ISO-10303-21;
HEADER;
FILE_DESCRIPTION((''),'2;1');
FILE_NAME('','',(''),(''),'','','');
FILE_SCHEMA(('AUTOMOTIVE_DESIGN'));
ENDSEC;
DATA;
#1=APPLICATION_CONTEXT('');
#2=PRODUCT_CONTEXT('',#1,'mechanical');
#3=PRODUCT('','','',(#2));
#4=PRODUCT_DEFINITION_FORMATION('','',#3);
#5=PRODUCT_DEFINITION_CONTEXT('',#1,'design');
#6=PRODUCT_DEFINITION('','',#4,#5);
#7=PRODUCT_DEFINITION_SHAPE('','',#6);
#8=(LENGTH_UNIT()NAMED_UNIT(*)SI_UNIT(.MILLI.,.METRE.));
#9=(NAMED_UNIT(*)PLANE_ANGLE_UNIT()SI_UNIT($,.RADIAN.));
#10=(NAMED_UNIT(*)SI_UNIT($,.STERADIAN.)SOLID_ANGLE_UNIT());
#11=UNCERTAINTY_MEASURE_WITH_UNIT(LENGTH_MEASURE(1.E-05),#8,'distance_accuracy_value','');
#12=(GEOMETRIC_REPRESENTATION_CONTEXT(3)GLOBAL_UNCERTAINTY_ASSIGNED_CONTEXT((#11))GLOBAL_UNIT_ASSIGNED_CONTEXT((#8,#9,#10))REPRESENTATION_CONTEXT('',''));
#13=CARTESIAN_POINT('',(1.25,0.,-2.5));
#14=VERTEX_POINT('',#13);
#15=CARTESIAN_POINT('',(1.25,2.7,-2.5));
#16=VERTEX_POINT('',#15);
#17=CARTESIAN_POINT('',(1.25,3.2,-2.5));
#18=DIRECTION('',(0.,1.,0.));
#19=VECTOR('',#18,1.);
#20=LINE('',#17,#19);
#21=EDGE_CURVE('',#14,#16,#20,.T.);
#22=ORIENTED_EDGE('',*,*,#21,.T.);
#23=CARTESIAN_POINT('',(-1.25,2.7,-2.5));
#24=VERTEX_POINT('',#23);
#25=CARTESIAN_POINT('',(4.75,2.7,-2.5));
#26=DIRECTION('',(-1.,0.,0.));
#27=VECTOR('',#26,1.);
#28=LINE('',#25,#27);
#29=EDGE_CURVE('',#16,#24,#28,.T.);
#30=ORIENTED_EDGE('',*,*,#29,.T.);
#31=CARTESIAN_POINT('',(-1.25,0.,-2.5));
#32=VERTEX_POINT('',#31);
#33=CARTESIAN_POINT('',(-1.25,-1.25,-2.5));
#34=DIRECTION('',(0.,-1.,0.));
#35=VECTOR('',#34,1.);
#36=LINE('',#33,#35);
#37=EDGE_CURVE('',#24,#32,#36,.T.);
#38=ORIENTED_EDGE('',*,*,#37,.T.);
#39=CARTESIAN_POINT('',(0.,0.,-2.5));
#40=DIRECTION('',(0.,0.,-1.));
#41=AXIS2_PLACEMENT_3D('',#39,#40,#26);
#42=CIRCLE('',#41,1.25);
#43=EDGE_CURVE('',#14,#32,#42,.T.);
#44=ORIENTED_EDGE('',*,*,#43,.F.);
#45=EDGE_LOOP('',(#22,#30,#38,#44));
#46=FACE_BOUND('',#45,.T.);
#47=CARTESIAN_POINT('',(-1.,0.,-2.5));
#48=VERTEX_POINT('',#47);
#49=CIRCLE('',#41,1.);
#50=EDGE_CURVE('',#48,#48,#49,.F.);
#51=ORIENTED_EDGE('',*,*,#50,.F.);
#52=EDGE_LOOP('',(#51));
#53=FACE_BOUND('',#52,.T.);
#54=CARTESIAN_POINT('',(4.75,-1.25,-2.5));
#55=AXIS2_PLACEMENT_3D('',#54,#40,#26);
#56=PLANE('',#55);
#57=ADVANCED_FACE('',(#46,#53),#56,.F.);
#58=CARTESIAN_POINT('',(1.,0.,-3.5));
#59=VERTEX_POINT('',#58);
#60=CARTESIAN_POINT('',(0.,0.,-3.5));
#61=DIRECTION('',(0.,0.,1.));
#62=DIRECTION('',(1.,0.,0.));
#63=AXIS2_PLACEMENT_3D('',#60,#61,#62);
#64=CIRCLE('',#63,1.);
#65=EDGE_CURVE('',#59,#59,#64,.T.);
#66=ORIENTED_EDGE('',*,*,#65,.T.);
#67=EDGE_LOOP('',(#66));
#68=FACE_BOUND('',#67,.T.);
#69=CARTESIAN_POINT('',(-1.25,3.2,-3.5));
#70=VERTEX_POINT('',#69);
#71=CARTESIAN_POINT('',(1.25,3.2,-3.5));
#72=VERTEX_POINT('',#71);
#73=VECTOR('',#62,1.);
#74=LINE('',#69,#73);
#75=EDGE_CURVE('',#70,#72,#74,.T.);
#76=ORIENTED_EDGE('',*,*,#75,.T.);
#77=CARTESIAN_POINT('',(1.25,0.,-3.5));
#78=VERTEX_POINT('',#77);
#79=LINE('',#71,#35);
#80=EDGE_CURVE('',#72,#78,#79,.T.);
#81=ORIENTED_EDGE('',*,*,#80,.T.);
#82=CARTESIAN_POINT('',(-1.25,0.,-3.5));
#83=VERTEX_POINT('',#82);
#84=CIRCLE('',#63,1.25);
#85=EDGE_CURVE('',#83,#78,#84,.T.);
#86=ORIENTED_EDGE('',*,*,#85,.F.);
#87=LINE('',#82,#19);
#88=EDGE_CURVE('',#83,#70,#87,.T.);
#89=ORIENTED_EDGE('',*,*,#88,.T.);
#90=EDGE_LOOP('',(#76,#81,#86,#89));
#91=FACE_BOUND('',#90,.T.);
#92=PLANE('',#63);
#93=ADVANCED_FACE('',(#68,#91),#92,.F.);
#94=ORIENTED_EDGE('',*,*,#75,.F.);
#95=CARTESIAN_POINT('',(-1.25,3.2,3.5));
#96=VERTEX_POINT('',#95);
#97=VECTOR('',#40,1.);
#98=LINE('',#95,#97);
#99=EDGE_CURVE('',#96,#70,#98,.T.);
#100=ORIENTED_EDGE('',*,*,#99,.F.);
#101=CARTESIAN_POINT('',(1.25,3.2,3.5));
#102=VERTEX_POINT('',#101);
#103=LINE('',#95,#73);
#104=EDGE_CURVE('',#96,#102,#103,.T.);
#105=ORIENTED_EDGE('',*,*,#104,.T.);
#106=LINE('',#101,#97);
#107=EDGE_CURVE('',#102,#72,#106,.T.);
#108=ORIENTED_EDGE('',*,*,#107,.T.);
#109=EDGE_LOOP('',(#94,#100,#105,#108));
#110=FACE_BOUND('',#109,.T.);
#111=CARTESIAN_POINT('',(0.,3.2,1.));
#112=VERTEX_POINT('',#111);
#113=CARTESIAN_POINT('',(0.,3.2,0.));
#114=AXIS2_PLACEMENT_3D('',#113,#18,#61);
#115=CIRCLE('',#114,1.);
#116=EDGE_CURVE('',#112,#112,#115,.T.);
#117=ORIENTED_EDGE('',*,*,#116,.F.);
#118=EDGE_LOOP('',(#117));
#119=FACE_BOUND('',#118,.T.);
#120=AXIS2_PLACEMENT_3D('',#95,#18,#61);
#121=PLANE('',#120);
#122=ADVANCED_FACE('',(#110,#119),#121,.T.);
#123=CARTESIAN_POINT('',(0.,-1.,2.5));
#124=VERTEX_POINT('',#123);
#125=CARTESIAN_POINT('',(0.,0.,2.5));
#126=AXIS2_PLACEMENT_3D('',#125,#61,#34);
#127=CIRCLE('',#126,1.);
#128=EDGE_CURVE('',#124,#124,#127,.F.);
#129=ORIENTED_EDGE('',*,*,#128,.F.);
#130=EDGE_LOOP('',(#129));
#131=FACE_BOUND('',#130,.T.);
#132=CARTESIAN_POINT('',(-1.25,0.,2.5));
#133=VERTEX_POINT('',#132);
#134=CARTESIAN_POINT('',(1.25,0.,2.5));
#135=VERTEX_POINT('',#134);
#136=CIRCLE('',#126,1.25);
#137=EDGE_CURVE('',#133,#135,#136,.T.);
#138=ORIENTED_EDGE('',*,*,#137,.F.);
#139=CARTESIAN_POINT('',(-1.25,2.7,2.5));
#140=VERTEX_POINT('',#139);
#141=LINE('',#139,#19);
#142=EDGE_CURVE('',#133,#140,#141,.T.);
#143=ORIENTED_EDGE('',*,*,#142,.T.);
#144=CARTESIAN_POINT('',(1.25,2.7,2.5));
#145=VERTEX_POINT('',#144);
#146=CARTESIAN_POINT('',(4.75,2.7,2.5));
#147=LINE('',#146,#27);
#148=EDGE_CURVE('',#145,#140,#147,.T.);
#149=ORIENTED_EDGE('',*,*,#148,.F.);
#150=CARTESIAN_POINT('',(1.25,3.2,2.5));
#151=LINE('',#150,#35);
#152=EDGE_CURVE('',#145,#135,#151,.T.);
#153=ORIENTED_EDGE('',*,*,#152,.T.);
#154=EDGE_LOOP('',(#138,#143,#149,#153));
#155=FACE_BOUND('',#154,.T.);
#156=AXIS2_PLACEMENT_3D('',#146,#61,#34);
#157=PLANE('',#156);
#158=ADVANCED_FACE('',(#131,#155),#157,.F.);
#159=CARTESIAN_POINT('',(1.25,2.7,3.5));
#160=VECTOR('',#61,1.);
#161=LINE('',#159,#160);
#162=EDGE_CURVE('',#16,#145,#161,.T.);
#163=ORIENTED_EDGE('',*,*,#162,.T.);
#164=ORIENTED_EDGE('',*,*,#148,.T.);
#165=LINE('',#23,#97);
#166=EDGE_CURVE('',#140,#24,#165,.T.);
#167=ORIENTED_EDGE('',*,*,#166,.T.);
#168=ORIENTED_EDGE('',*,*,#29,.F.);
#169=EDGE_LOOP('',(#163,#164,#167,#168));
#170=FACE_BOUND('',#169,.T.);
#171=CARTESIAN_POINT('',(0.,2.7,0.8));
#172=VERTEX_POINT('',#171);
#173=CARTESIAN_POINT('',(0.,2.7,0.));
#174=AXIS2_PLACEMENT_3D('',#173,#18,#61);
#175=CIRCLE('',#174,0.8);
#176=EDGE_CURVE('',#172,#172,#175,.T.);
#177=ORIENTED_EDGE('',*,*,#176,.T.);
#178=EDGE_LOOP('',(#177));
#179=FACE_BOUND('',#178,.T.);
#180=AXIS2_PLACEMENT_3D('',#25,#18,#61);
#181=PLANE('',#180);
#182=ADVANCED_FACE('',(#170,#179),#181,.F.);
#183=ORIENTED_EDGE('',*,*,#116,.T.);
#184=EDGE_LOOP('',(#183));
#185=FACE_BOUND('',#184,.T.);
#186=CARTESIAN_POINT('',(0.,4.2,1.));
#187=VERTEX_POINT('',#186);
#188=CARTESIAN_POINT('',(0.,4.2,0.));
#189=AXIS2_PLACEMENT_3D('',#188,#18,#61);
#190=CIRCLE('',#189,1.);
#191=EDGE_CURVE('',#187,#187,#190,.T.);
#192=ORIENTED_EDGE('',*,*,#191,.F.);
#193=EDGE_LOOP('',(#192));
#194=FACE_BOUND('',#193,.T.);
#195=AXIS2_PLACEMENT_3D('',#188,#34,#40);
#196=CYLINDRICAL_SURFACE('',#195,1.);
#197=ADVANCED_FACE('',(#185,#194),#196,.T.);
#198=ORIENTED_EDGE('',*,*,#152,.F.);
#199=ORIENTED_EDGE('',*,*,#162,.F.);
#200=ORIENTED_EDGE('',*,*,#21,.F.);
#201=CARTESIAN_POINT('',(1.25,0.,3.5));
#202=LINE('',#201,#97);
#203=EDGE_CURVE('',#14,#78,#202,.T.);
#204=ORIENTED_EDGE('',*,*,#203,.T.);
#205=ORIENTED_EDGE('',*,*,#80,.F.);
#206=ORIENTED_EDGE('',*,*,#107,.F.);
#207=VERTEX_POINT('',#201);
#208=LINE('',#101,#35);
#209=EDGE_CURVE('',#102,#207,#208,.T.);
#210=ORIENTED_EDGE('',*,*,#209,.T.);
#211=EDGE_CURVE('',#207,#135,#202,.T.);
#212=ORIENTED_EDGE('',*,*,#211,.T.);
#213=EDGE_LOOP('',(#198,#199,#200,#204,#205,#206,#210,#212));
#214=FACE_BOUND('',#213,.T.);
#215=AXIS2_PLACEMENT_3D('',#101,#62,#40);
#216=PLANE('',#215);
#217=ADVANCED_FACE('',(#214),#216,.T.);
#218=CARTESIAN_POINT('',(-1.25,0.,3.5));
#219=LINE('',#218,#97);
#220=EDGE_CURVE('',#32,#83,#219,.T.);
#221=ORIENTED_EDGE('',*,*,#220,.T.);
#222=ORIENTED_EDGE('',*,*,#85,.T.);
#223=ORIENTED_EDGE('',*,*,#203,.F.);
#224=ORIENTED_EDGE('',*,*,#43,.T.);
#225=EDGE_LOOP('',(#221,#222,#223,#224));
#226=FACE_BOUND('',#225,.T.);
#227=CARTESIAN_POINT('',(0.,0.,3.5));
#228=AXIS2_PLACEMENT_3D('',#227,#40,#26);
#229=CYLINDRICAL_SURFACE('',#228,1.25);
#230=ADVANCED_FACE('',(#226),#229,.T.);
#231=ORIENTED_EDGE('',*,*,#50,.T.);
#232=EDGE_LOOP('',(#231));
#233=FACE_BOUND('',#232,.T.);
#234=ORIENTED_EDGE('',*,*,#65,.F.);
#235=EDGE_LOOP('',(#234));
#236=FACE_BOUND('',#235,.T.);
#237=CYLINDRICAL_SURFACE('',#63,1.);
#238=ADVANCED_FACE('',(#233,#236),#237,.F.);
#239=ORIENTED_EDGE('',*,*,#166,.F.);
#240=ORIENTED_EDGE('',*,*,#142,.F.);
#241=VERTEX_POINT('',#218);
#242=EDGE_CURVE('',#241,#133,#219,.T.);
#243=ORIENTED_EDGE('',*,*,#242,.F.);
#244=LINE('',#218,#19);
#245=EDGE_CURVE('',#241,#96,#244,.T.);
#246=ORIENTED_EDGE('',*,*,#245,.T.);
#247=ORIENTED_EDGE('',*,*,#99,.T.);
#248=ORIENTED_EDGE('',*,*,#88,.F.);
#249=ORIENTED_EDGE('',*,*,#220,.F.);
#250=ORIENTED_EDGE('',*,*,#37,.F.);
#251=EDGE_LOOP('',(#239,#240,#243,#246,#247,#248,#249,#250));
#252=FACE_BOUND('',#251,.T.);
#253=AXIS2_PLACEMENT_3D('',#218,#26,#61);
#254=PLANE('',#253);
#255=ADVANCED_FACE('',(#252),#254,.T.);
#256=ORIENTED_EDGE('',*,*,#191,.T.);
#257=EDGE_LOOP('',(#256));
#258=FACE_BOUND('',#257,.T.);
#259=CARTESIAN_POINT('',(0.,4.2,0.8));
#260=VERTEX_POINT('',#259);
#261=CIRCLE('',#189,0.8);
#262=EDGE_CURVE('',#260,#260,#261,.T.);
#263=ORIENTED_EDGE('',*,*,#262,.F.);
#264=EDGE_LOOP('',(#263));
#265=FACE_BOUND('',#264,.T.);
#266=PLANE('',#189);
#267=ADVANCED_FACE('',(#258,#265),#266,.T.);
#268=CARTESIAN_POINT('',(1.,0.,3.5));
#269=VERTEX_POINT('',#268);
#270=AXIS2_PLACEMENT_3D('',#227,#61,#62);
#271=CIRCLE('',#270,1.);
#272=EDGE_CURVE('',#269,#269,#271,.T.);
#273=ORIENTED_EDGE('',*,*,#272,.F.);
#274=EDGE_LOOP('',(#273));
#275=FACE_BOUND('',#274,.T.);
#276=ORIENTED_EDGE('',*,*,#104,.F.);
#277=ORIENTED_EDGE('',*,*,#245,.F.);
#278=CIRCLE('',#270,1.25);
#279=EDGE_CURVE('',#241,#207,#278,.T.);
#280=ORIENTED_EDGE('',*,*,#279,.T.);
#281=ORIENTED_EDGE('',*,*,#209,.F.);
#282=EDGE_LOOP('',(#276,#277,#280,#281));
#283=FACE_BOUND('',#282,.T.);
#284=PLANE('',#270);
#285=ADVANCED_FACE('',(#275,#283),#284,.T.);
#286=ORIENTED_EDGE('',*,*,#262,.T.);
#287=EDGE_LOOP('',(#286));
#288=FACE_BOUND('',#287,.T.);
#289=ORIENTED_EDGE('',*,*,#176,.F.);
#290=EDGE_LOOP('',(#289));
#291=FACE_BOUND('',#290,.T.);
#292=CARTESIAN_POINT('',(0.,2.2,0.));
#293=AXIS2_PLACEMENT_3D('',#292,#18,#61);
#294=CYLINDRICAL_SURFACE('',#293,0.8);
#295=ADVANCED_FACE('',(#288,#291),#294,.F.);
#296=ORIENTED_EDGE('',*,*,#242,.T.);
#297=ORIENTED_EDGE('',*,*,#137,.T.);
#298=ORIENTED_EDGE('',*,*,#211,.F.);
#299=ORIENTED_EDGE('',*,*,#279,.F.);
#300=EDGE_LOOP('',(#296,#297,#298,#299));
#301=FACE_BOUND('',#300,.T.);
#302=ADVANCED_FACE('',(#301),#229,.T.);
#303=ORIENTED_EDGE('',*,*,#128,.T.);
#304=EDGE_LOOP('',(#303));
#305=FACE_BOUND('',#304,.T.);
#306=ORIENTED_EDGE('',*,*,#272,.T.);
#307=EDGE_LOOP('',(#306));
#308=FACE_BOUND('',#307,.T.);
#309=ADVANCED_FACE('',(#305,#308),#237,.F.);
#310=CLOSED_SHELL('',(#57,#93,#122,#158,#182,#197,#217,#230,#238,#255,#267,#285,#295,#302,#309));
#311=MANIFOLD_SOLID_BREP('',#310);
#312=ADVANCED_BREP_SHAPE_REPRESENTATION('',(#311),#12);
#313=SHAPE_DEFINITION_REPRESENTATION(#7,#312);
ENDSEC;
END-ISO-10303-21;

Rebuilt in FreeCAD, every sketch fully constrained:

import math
import FreeCAD as App
import Part
import Sketcher

V = App.Vector


def add_polygon(sketch, points):
    """Adds a closed chain of lines whose ends are joined by coincident constraints."""
    first, n = sketch.GeometryCount, len(points)
    for a, b in zip(points, points[1:] + points[:1]):
        sketch.addGeometry(Part.LineSegment(App.Vector(*a, 0), App.Vector(*b, 0)), False)
    for i in range(n):
        sketch.addConstraint(Sketcher.Constraint("Coincident", first + i, 2, first + (i + 1) % n, 1))

doc = App.newDocument("Part")
body = doc.addObject("PartDesign::Body", "Body")

# Sketch on XY plane
sketch1 = doc.addObject("Sketcher::SketchObject", "Sketch")
body.addObject(sketch1)
sketch1.AttachmentSupport = (doc.XY_Plane, [""])
sketch1.MapMode = "FlatFace"
sketch1.addGeometry(Part.LineSegment(V(-1.2, 3.2, 0), V(-1.2, 0, 0)), False)
sketch1.addGeometry(Part.ArcOfCircle(Part.Circle(V(0, 0, 0), V(0, 0, 1), 1.2), math.radians(180), math.radians(360)), False)
sketch1.addGeometry(Part.LineSegment(V(1.2, 0, 0), V(1.2, 3.2, 0)), False)
sketch1.addGeometry(Part.LineSegment(V(1.2, 3.2, 0), V(-1.2, 3.2, 0)), False)
sketch1.addConstraint(Sketcher.Constraint("Tangent", 0, 2, 1, 1))
sketch1.addConstraint(Sketcher.Constraint("Tangent", 1, 2, 2, 1))
sketch1.addConstraint(Sketcher.Constraint("Coincident", 2, 2, 3, 1))
sketch1.addConstraint(Sketcher.Constraint("Coincident", 3, 2, 0, 1))
sketch1.addConstraint(Sketcher.Constraint("Vertical", 0))
sketch1.addConstraint(Sketcher.Constraint("Vertical", 2))
sketch1.addConstraint(Sketcher.Constraint("Horizontal", 3))
sketch1.addConstraint(Sketcher.Constraint("Coincident", 1, 3, -1, 1))
sketch1.addConstraint(Sketcher.Constraint("Radius", 1, 1.25))
sketch1.addConstraint(Sketcher.Constraint("DistanceY", 0, 2, 0, 1, 3.2))
pad1 = doc.addObject("PartDesign::Pad", "Pad")
body.addObject(pad1)
pad1.Profile = sketch1
pad1.Length = 7
pad1.Midplane = True

# Sketch on XY plane
sketch2 = doc.addObject("Sketcher::SketchObject", "Sketch001")
body.addObject(sketch2)
sketch2.AttachmentSupport = (doc.XY_Plane, [""])
sketch2.MapMode = "FlatFace"
sketch2.AttachmentOffset = App.Placement(V(0, 0, 3.5), App.Rotation())
sketch2.addGeometry(Part.Circle(V(0, 0, 0), V(0, 0, 1), 1), False)
sketch2.addConstraint(Sketcher.Constraint("Coincident", 0, 3, -1, 1))
sketch2.addConstraint(Sketcher.Constraint("Diameter", 0, 2.0))
pocket1 = doc.addObject("PartDesign::Pocket", "Pocket")
body.addObject(pocket1)
pocket1.Profile = sketch2
pocket1.Type = "ThroughAll"

# Sketch on YZ plane
sketch3 = doc.addObject("Sketcher::SketchObject", "Sketch002")
body.addObject(sketch3)
sketch3.AttachmentSupport = (doc.YZ_Plane, [""])
sketch3.MapMode = "FlatFace"
sketch3.AttachmentOffset = App.Placement(V(0, 0, -1.25), App.Rotation())
add_polygon(sketch3, [(2.7, -2.5), (-1.2, -2.5), (-1.2, 2.5), (2.7, 2.5)])  # lines 0-3
sketch3.addConstraint(Sketcher.Constraint("Horizontal", 0))
sketch3.addConstraint(Sketcher.Constraint("Vertical", 1))
sketch3.addConstraint(Sketcher.Constraint("Horizontal", 2))
sketch3.addConstraint(Sketcher.Constraint("Vertical", 3))
sketch3.addConstraint(Sketcher.Constraint("DistanceY", 1, 1, 1, 2, 5.0))
sketch3.addConstraint(Sketcher.Constraint("DistanceX", 0, 2, 0, 1, 3.95))
sketch3.addConstraint(Sketcher.Constraint("DistanceY", 0, 2, -1, 1, 2.5))
sketch3.addConstraint(Sketcher.Constraint("DistanceX", -1, 1, 2, 2, 2.7))
pocket2 = doc.addObject("PartDesign::Pocket", "Pocket001")
body.addObject(pocket2)
pocket2.Profile = sketch3
pocket2.Length = 6
pocket2.Reversed = True

# Sketch on XZ plane
sketch4 = doc.addObject("Sketcher::SketchObject", "Sketch003")
body.addObject(sketch4)
sketch4.AttachmentSupport = (doc.XZ_Plane, [""])
sketch4.MapMode = "FlatFace"
sketch4.AttachmentOffset = App.Placement(V(0, 0, -3.2), App.Rotation())
sketch4.addGeometry(Part.Circle(V(0, 0, 0), V(0, 0, 1), 1), False)
sketch4.addConstraint(Sketcher.Constraint("Coincident", 0, 3, -1, 1))
sketch4.addConstraint(Sketcher.Constraint("Diameter", 0, 2.0))
pad2 = doc.addObject("PartDesign::Pad", "Pad001")
body.addObject(pad2)
pad2.Profile = sketch4
pad2.Length = 1
pad2.Reversed = True

# Sketch on XZ plane
sketch5 = doc.addObject("Sketcher::SketchObject", "Sketch004")
body.addObject(sketch5)
sketch5.AttachmentSupport = (doc.XZ_Plane, [""])
sketch5.MapMode = "FlatFace"
sketch5.AttachmentOffset = App.Placement(V(0, 0, -4.2), App.Rotation())
sketch5.addGeometry(Part.Circle(V(0, 0, 0), V(0, 0, 1), 0.8), False)
sketch5.addConstraint(Sketcher.Constraint("Coincident", 0, 3, -1, 1))
sketch5.addConstraint(Sketcher.Constraint("Diameter", 0, 1.6))
pocket3 = doc.addObject("PartDesign::Pocket", "Pocket002")
body.addObject(pocket3)
pocket3.Profile = sketch5
pocket3.Length = 2
pocket3.Reversed = True

doc.recompute()
